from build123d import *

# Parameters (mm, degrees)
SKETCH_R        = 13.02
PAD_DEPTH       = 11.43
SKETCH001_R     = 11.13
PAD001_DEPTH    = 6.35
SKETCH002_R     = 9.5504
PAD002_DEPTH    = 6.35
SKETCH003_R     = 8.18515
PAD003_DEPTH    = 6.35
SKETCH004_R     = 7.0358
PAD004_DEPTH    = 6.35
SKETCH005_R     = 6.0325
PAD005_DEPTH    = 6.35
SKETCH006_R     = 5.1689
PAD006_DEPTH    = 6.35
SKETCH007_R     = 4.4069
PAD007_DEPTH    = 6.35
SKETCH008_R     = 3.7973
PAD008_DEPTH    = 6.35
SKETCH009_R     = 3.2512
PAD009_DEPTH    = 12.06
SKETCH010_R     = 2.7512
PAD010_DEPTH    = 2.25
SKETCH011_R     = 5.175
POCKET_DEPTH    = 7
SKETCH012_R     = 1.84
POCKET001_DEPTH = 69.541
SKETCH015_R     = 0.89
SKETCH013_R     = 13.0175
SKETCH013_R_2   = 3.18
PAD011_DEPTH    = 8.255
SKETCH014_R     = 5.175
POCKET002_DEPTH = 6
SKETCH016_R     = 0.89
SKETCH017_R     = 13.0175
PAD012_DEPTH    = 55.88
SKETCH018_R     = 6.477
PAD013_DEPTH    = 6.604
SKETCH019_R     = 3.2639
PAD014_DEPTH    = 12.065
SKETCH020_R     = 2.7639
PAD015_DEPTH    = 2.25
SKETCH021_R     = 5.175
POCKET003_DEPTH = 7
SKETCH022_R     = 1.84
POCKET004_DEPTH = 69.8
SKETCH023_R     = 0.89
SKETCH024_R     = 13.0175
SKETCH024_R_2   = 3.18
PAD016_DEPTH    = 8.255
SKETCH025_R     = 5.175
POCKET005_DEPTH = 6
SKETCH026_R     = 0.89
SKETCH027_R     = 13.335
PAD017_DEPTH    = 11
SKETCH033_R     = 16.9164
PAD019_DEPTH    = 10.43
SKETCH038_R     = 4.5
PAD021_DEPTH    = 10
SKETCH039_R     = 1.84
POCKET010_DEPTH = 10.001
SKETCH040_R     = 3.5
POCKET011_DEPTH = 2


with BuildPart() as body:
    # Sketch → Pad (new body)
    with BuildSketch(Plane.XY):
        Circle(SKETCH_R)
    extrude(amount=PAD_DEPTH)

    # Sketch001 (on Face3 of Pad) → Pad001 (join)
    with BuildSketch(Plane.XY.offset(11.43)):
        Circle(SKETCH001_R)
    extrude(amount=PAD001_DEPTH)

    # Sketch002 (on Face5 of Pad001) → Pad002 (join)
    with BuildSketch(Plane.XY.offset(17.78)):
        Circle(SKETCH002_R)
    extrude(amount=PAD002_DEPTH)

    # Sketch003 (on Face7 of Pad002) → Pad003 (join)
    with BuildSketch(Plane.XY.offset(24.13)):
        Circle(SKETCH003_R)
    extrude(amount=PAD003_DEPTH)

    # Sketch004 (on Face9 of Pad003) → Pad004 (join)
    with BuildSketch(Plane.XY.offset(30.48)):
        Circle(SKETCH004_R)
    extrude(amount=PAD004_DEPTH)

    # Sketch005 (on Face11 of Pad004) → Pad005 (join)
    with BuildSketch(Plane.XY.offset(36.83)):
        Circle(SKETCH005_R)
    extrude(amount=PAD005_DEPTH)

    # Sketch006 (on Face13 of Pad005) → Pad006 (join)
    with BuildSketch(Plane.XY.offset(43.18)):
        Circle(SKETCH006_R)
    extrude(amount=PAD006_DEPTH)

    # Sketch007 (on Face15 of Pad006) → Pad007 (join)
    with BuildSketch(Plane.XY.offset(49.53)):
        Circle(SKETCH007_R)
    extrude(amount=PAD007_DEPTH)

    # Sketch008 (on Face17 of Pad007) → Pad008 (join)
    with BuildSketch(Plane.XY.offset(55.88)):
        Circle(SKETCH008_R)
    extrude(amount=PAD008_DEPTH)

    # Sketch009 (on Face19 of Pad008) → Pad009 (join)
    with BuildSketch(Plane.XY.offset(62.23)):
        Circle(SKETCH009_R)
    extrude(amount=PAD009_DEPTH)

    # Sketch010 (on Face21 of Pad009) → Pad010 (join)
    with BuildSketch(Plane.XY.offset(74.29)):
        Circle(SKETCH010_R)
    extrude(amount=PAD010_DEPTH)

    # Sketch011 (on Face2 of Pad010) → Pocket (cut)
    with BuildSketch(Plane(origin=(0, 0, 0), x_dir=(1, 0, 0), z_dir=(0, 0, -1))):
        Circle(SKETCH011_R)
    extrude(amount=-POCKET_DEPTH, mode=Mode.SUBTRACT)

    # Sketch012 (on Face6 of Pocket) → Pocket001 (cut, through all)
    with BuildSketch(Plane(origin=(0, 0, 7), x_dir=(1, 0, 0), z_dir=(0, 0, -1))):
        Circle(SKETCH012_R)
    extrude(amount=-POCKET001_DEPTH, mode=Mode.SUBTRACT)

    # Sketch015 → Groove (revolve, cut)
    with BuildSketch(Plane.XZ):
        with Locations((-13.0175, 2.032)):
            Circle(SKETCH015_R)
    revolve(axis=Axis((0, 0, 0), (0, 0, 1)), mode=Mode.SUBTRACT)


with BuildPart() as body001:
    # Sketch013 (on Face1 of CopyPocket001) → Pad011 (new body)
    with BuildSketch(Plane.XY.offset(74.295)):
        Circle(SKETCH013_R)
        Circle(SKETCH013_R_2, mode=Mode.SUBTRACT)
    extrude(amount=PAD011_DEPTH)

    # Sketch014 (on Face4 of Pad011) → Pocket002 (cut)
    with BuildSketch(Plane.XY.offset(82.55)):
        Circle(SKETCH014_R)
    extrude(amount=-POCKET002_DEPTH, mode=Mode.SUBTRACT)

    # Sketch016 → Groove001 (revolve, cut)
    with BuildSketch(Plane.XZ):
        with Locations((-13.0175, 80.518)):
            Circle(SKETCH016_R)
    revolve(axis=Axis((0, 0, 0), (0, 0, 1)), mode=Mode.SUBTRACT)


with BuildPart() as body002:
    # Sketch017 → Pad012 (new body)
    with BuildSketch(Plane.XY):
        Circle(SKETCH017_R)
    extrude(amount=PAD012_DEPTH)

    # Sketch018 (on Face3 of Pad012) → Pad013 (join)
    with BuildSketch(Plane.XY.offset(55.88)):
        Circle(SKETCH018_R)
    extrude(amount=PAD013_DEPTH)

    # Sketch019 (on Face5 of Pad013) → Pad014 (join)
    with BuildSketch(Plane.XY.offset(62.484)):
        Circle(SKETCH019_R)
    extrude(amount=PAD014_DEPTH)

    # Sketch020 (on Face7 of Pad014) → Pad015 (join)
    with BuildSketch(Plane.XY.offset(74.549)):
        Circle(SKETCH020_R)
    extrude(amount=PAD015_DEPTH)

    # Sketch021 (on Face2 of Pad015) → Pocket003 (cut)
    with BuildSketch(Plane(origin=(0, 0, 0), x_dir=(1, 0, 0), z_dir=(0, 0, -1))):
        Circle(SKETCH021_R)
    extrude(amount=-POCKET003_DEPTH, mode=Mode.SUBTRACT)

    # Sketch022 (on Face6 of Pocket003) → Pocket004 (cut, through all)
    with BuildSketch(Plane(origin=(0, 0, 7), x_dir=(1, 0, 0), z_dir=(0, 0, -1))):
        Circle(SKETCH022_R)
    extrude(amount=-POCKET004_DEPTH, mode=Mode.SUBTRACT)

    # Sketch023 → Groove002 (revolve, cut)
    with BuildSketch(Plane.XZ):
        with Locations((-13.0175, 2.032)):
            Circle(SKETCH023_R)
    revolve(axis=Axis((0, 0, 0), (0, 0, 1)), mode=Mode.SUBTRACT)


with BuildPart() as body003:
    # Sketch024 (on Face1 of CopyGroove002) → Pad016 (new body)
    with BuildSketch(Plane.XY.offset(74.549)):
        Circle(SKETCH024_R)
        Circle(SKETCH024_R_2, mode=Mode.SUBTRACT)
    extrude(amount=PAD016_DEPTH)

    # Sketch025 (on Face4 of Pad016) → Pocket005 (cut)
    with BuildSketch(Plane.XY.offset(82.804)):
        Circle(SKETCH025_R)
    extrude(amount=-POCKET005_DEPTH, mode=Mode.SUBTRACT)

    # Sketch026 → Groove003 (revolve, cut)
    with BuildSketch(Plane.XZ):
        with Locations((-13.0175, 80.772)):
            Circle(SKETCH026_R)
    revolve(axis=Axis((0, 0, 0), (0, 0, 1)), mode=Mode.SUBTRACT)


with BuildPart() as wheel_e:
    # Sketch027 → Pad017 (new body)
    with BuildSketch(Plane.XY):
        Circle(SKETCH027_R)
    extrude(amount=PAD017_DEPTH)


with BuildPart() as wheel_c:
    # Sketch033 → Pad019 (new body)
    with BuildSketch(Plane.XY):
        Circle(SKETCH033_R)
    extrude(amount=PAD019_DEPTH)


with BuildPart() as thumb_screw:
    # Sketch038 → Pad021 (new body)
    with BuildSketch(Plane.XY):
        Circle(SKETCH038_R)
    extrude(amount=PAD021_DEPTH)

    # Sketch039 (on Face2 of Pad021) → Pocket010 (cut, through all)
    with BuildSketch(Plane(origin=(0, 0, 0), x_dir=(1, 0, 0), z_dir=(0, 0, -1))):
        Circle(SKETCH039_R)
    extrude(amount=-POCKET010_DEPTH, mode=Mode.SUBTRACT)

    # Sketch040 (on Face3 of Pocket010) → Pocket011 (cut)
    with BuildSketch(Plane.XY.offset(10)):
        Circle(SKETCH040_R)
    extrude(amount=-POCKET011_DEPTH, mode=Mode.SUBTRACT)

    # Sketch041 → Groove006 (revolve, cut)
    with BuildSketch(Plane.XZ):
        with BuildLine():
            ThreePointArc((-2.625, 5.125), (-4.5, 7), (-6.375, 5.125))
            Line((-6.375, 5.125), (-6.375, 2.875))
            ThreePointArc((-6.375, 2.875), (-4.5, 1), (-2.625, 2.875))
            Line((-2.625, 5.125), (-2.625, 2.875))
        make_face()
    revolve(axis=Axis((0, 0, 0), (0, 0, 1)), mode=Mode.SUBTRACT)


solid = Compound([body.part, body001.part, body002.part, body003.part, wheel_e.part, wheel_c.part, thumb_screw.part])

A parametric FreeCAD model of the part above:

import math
import FreeCAD as App
import Part
import Sketcher
from FreeCAD import Vector
Q = App.Units.Quantity

doc = App.newDocument("Part")
body = doc.addObject("PartDesign::Body", "Body")

sketch1 = body.newObject("Sketcher::SketchObject", "Sketch")
sketch1.AttachmentSupport = (doc.getObject("XY_Plane"), [""])
sketch1.MapMode = "FlatFace"
sketch1.addGeometry(Part.Circle(Vector(0, 0, 0), Vector(0, 0, 1), 13), False)
sketch1.addConstraint([
    Sketcher.Constraint("Coincident", 0, 3, -1, 1),
    Sketcher.Constraint("Diameter", 0, 26.04),
])
pad1 = body.newObject("PartDesign::Pad", "Pad")
pad1.Profile = sketch1
pad1.Length = Q("0.45 in")

sketch2 = body.newObject("Sketcher::SketchObject", "Sketch001")
sketch2.AttachmentSupport = (doc.getObject("XY_Plane"), [""])
sketch2.MapMode = "FlatFace"
sketch2.AttachmentOffset = App.Placement(Vector(0, 0, 0.45 * 25.4), App.Rotation())
sketch2.addGeometry(Part.Circle(Vector(0, 0, 0), Vector(0, 0, 1), 11), False)
sketch2.addConstraint([
    Sketcher.Constraint("Coincident", 0, 3, -1, 1),
    Sketcher.Constraint("Diameter", 0, 22.26),
])
pad2 = body.newObject("PartDesign::Pad", "Pad001")
pad2.Profile = sketch2
pad2.Length = Q("0.25 in")

sketch3 = body.newObject("Sketcher::SketchObject", "Sketch002")
sketch3.AttachmentSupport = (doc.getObject("XY_Plane"), [""])
sketch3.MapMode = "FlatFace"
sketch3.AttachmentOffset = App.Placement(Vector(0, 0, 0.7 * 25.4), App.Rotation())
sketch3.addGeometry(Part.Circle(Vector(0, 0, 0), Vector(0, 0, 1), 10), False)
sketch3.addConstraint([
    Sketcher.Constraint("Coincident", 0, 3, -1, 1),
    Sketcher.Constraint("Diameter", 0, Q("0.752 in")),
])
pad3 = body.newObject("PartDesign::Pad", "Pad002")
pad3.Profile = sketch3
pad3.Length = Q("0.25 in")

sketch4 = body.newObject("Sketcher::SketchObject", "Sketch003")
sketch4.AttachmentSupport = (doc.getObject("XY_Plane"), [""])
sketch4.MapMode = "FlatFace"
sketch4.AttachmentOffset = App.Placement(Vector(0, 0, 0.95 * 25.4), App.Rotation())
sketch4.addGeometry(Part.Circle(Vector(0, 0, 0), Vector(0, 0, 1), 8), False)
sketch4.addConstraint([
    Sketcher.Constraint("Coincident", 0, 3, -1, 1),
    Sketcher.Constraint("Diameter", 0, Q("0.6445 in")),
])
pad4 = body.newObject("PartDesign::Pad", "Pad003")
pad4.Profile = sketch4
pad4.Length = Q("0.25 in")

sketch5 = body.newObject("Sketcher::SketchObject", "Sketch004")
sketch5.AttachmentSupport = (doc.getObject("XY_Plane"), [""])
sketch5.MapMode = "FlatFace"
sketch5.AttachmentOffset = App.Placement(Vector(0, 0, 1.2 * 25.4), App.Rotation())
sketch5.addGeometry(Part.Circle(Vector(0, 0, 0), Vector(0, 0, 1), 7), False)
sketch5.addConstraint([
    Sketcher.Constraint("Coincident", 0, 3, -1, 1),
    Sketcher.Constraint("Diameter", 0, Q("0.554 in")),
])
pad5 = body.newObject("PartDesign::Pad", "Pad004")
pad5.Profile = sketch5
pad5.Length = Q("0.25 in")

sketch6 = body.newObject("Sketcher::SketchObject", "Sketch005")
sketch6.AttachmentSupport = (doc.getObject("XY_Plane"), [""])
sketch6.MapMode = "FlatFace"
sketch6.AttachmentOffset = App.Placement(Vector(0, 0, 1.45 * 25.4), App.Rotation())
sketch6.addGeometry(Part.Circle(Vector(0, 0, 0), Vector(0, 0, 1), 6), False)
sketch6.addConstraint([
    Sketcher.Constraint("Coincident", 0, 3, -1, 1),
    Sketcher.Constraint("Diameter", 0, Q("0.475 in")),
])
pad6 = body.newObject("PartDesign::Pad", "Pad005")
pad6.Profile = sketch6
pad6.Length = Q("0.25 in")

sketch7 = body.newObject("Sketcher::SketchObject", "Sketch006")
sketch7.AttachmentSupport = (doc.getObject("XY_Plane"), [""])
sketch7.MapMode = "FlatFace"
sketch7.AttachmentOffset = App.Placement(Vector(0, 0, 1.7 * 25.4), App.Rotation())
sketch7.addGeometry(Part.Circle(Vector(0, 0, 0), Vector(0, 0, 1), 5), False)
sketch7.addConstraint([
    Sketcher.Constraint("Coincident", 0, 3, -1, 1),
    Sketcher.Constraint("Diameter", 0, Q("0.407 in")),
])
pad7 = body.newObject("PartDesign::Pad", "Pad006")
pad7.Profile = sketch7
pad7.Length = Q("0.25 in")

sketch8 = body.newObject("Sketcher::SketchObject", "Sketch007")
sketch8.AttachmentSupport = (doc.getObject("XY_Plane"), [""])
sketch8.MapMode = "FlatFace"
sketch8.AttachmentOffset = App.Placement(Vector(0, 0, 1.95 * 25.4), App.Rotation())
sketch8.addGeometry(Part.Circle(Vector(0, 0, 0), Vector(0, 0, 1), 4.4), False)
sketch8.addConstraint([
    Sketcher.Constraint("Coincident", 0, 3, -1, 1),
    Sketcher.Constraint("Diameter", 0, Q("0.347 in")),
])
pad8 = body.newObject("PartDesign::Pad", "Pad007")
pad8.Profile = sketch8
pad8.Length = Q("0.25 in")

sketch9 = body.newObject("Sketcher::SketchObject", "Sketch008")
sketch9.AttachmentSupport = (doc.getObject("XY_Plane"), [""])
sketch9.MapMode = "FlatFace"
sketch9.AttachmentOffset = App.Placement(Vector(0, 0, 2.2 * 25.4), App.Rotation())
sketch9.addGeometry(Part.Circle(Vector(0, 0, 0), Vector(0, 0, 1), 3.8), False)
sketch9.addConstraint([
    Sketcher.Constraint("Coincident", 0, 3, -1, 1),
    Sketcher.Constraint("Diameter", 0, Q("0.299 in")),
])
pad9 = body.newObject("PartDesign::Pad", "Pad008")
pad9.Profile = sketch9
pad9.Length = Q("0.25 in")

sketch10 = body.newObject("Sketcher::SketchObject", "Sketch009")
sketch10.AttachmentSupport = (doc.getObject("XY_Plane"), [""])
sketch10.MapMode = "FlatFace"
sketch10.AttachmentOffset = App.Placement(Vector(0, 0, 2.45 * 25.4), App.Rotation())
sketch10.addGeometry(Part.Circle(Vector(0, 0, 0), Vector(0, 0, 1), 3.3), False)
sketch10.addConstraint([
    Sketcher.Constraint("Coincident", 0, 3, -1, 1),
    Sketcher.Constraint("Diameter", 0, Q("0.256 in")),
])
pad10 = body.newObject("PartDesign::Pad", "Pad009")
pad10.Profile = sketch10
pad10.Length = 12.06

sketch11 = body.newObject("Sketcher::SketchObject", "Sketch010")
sketch11.AttachmentSupport = (doc.getObject("XY_Plane"), [""])
sketch11.MapMode = "FlatFace"
sketch11.AttachmentOffset = App.Placement(Vector(0, 0, 74.29), App.Rotation())
sketch11.addGeometry(Part.Circle(Vector(0, 0, 0), Vector(0, 0, 1), 2.8), False)
sketch11.addConstraint([
    Sketcher.Constraint("Coincident", 0, 3, -1, 1),
    Sketcher.Constraint("Diameter", 0, 5.5024),
])
pad11 = body.newObject("PartDesign::Pad", "Pad010")
pad11.Profile = sketch11
pad11.Length = 2.25

sketch12 = body.newObject("Sketcher::SketchObject", "Sketch011")
sketch12.AttachmentSupport = (doc.getObject("XY_Plane"), [""])
sketch12.MapMode = "FlatFace"
sketch12.addGeometry(Part.Circle(Vector(0, 0, 0), Vector(0, 0, 1), 5), False)
sketch12.addConstraint([
    Sketcher.Constraint("Coincident", 0, 3, -1, 1),
    Sketcher.Constraint("Diameter", 0, 10.35),
])
pocket1 = body.newObject("PartDesign::Pocket", "Pocket")
pocket1.Profile = sketch12
pocket1.Length = 7
pocket1.Reversed = True

sketch13 = body.newObject("Sketcher::SketchObject", "Sketch012")
sketch13.AttachmentSupport = (doc.getObject("XY_Plane"), [""])
sketch13.MapMode = "FlatFace"
sketch13.AttachmentOffset = App.Placement(Vector(0, 0, 7), App.Rotation())
sketch13.addGeometry(Part.Circle(Vector(0, 0, 0), Vector(0, 0, 1), 1.8), False)
sketch13.addConstraint([
    Sketcher.Constraint("Coincident", 0, 3, -1, 1),
    Sketcher.Constraint("Diameter", 0, 3.68),
])
pocket2 = body.newObject("PartDesign::Pocket", "Pocket001")
pocket2.Profile = sketch13
pocket2.Type = "ThroughAll"
pocket2.Reversed = True

sketch14 = body.newObject("Sketcher::SketchObject", "Sketch013")
sketch14.AttachmentSupport = (doc.getObject("XZ_Plane"), [""])
sketch14.MapMode = "FlatFace"
sketch14.addGeometry(Part.Circle(Vector(-13, 2, 0), Vector(0, 0, 1), 0.9), False)
sketch14.addConstraint([
    Sketcher.Constraint("Diameter", 0, 1.78),
    Sketcher.Constraint("DistanceY", -1, 1, 0, 3, Q("0.08 in")),
    Sketcher.Constraint("DistanceX", 0, 3, -1, 1, Q("0.5125 in")),
])
groove = body.newObject("PartDesign::Groove", "Groove")
groove.Profile = sketch14
groove.ReferenceAxis = (sketch14, ["V_Axis"])
groove.Angle = 360
body2 = doc.addObject("PartDesign::Body", "Body001")

sketch15 = body2.newObject("Sketcher::SketchObject", "Sketch014")
sketch15.AttachmentSupport = (doc.getObject("XY_Plane001"), [""])
sketch15.MapMode = "FlatFace"
sketch15.AttachmentOffset = App.Placement(Vector(0, 0, 2.925 * 25.4), App.Rotation())
sketch15.addGeometry([
    Part.Circle(Vector(0, 0, 0), Vector(0, 0, 1), 13),
    Part.Circle(Vector(0, 0, 0), Vector(0, 0, 1), 3.2),
], False)
sketch15.addConstraint([
    Sketcher.Constraint("Coincident", 0, 3, -1, 1),
    Sketcher.Constraint("Coincident", 1, 3, -1, 1),
    Sketcher.Constraint("Diameter", 0, Q("1.025 in")),
    Sketcher.Constraint("Diameter", 1, 6.36),
])
pad12 = body2.newObject("PartDesign::Pad", "Pad011")
pad12.Profile = sketch15
pad12.Length = Q("0.325 in")

sketch16 = body2.newObject("Sketcher::SketchObject", "Sketch015")
sketch16.AttachmentSupport = (doc.getObject("XY_Plane001"), [""])
sketch16.MapMode = "FlatFace"
sketch16.AttachmentOffset = App.Placement(Vector(0, 0, 3.25 * 25.4), App.Rotation())
sketch16.addGeometry(Part.Circle(Vector(0, 0, 0), Vector(0, 0, 1), 5), False)
sketch16.addConstraint([
    Sketcher.Constraint("Coincident", 0, 3, -1, 1),
    Sketcher.Constraint("Diameter", 0, 10.35),
])
pocket3 = body2.newObject("PartDesign::Pocket", "Pocket002")
pocket3.Profile = sketch16
pocket3.Length = 6

sketch17 = body2.newObject("Sketcher::SketchObject", "Sketch016")
sketch17.AttachmentSupport = (doc.getObject("XZ_Plane001"), [""])
sketch17.MapMode = "FlatFace"
sketch17.addGeometry(Part.Circle(Vector(-13, 80.5, 0), Vector(0, 0, 1), 0.9), False)
sketch17.addConstraint([
    Sketcher.Constraint("Diameter", 0, 1.78),
    Sketcher.Constraint("DistanceY", -1, 1, 0, 3, Q("3.17 in")),
    Sketcher.Constraint("DistanceX", 0, 3, -1, 1, Q("0.5125 in")),
])
groove2 = body2.newObject("PartDesign::Groove", "Groove001")
groove2.Profile = sketch17
groove2.ReferenceAxis = (sketch17, ["V_Axis"])
groove2.Angle = 360
body3 = doc.addObject("PartDesign::Body", "Body002")

sketch18 = body3.newObject("Sketcher::SketchObject", "Sketch017")
sketch18.AttachmentSupport = (doc.getObject("XY_Plane002"), [""])
sketch18.MapMode = "FlatFace"
sketch18.addGeometry(Part.Circle(Vector(0, 0, 0), Vector(0, 0, 1), 13), False)
sketch18.addConstraint([
    Sketcher.Constraint("Coincident", 0, 3, -1, 1),
    Sketcher.Constraint("Diameter", 0, Q("1.025 in")),
])
pad13 = body3.newObject("PartDesign::Pad", "Pad012")
pad13.Profile = sketch18
pad13.Length = Q("2.2 in")

sketch19 = body3.newObject("Sketcher::SketchObject", "Sketch018")
sketch19.AttachmentSupport = (doc.getObject("XY_Plane002"), [""])
sketch19.MapMode = "FlatFace"
sketch19.AttachmentOffset = App.Placement(Vector(0, 0, 2.2 * 25.4), App.Rotation())
sketch19.addGeometry(Part.Circle(Vector(0, 0, 0), Vector(0, 0, 1), 6), False)
sketch19.addConstraint([
    Sketcher.Constraint("Coincident", 0, 3, -1, 1),
    Sketcher.Constraint("Diameter", 0, Q("0.51 in")),
])
pad14 = body3.newObject("PartDesign::Pad", "Pad013")
pad14.Profile = sketch19
pad14.Length = Q("0.26 in")

sketch20 = body3.newObject("Sketcher::SketchObject", "Sketch019")
sketch20.AttachmentSupport = (doc.getObject("XY_Plane002"), [""])
sketch20.MapMode = "FlatFace"
sketch20.AttachmentOffset = App.Placement(Vector(0, 0, 2.46 * 25.4), App.Rotation())
sketch20.addGeometry(Part.Circle(Vector(0, 0, 0), Vector(0, 0, 1), 3.3), False)
sketch20.addConstraint([
    Sketcher.Constraint("Coincident", 0, 3, -1, 1),
    Sketcher.Constraint("Diameter", 0, Q("0.257 in")),
])
pad15 = body3.newObject("PartDesign::Pad", "Pad014")
pad15.Profile = sketch20
pad15.Length = Q("0.475 in")

sketch21 = body3.newObject("Sketcher::SketchObject", "Sketch020")
sketch21.AttachmentSupport = (doc.getObject("XY_Plane002"), [""])
sketch21.MapMode = "FlatFace"
sketch21.AttachmentOffset = App.Placement(Vector(0, 0, 2.935 * 25.4), App.Rotation())
sketch21.addGeometry(Part.Circle(Vector(0, 0, 0), Vector(0, 0, 1), 2.8), False)
sketch21.addConstraint([
    Sketcher.Constraint("Coincident", 0, 3, -1, 1),
    Sketcher.Constraint("Diameter", 0, 5.5278),
])
pad16 = body3.newObject("PartDesign::Pad", "Pad015")
pad16.Profile = sketch21
pad16.Length = 2.25

sketch22 = body3.newObject("Sketcher::SketchObject", "Sketch021")
sketch22.AttachmentSupport = (doc.getObject("XY_Plane002"), [""])
sketch22.MapMode = "FlatFace"
sketch22.addGeometry(Part.Circle(Vector(0, 0, 0), Vector(0, 0, 1), 5), False)
sketch22.addConstraint([
    Sketcher.Constraint("Coincident", 0, 3, -1, 1),
    Sketcher.Constraint("Diameter", 0, 10.35),
])
pocket4 = body3.newObject("PartDesign::Pocket", "Pocket003")
pocket4.Profile = sketch22
pocket4.Length = 7
pocket4.Reversed = True

sketch23 = body3.newObject("Sketcher::SketchObject", "Sketch022")
sketch23.AttachmentSupport = (doc.getObject("XY_Plane002"), [""])
sketch23.MapMode = "FlatFace"
sketch23.AttachmentOffset = App.Placement(Vector(0, 0, 7), App.Rotation())
sketch23.addGeometry(Part.Circle(Vector(0, 0, 0), Vector(0, 0, 1), 1.8), False)
sketch23.addConstraint([
    Sketcher.Constraint("Coincident", 0, 3, -1, 1),
    Sketcher.Constraint("Diameter", 0, 3.68),
])
pocket5 = body3.newObject("PartDesign::Pocket", "Pocket004")
pocket5.Profile = sketch23
pocket5.Type = "ThroughAll"
pocket5.Reversed = True

sketch24 = body3.newObject("Sketcher::SketchObject", "Sketch023")
sketch24.AttachmentSupport = (doc.getObject("XZ_Plane002"), [""])
sketch24.MapMode = "FlatFace"
sketch24.addGeometry(Part.Circle(Vector(-13, 2, 0), Vector(0, 0, 1), 0.9), False)
sketch24.addConstraint([
    Sketcher.Constraint("Diameter", 0, 1.78),
    Sketcher.Constraint("DistanceY", -1, 1, 0, 3, Q("0.08 in")),
    Sketcher.Constraint("DistanceX", 0, 3, -1, 1, Q("0.5125 in")),
])
groove3 = body3.newObject("PartDesign::Groove", "Groove002")
groove3.Profile = sketch24
groove3.ReferenceAxis = (sketch24, ["V_Axis"])
groove3.Angle = 360
body4 = doc.addObject("PartDesign::Body", "Body003")

sketch25 = body4.newObject("Sketcher::SketchObject", "Sketch024")
sketch25.AttachmentSupport = (doc.getObject("XY_Plane003"), [""])
sketch25.MapMode = "FlatFace"
sketch25.AttachmentOffset = App.Placement(Vector(0, 0, 2.935 * 25.4), App.Rotation())
sketch25.addGeometry([
    Part.Circle(Vector(0, 0, 0), Vector(0, 0, 1), 13),
    Part.Circle(Vector(0, 0, 0), Vector(0, 0, 1), 3.2),
], False)
sketch25.addConstraint([
    Sketcher.Constraint("Coincident", 0, 3, -1, 1),
    Sketcher.Constraint("Coincident", 1, 3, -1, 1),
    Sketcher.Constraint("Diameter", 0, Q("1.025 in")),
    Sketcher.Constraint("Diameter", 1, 6.36),
])
pad17 = body4.newObject("PartDesign::Pad", "Pad016")
pad17.Profile = sketch25
pad17.Length = Q("0.325 in")

sketch26 = body4.newObject("Sketcher::SketchObject", "Sketch025")
sketch26.AttachmentSupport = (doc.getObject("XY_Plane003"), [""])
sketch26.MapMode = "FlatFace"
sketch26.AttachmentOffset = App.Placement(Vector(0, 0, 3.26 * 25.4), App.Rotation())
sketch26.addGeometry(Part.Circle(Vector(0, 0, 0), Vector(0, 0, 1), 5), False)
sketch26.addConstraint([
    Sketcher.Constraint("Coincident", 0, 3, -1, 1),
    Sketcher.Constraint("Diameter", 0, 10.35),
])
pocket6 = body4.newObject("PartDesign::Pocket", "Pocket005")
pocket6.Profile = sketch26
pocket6.Length = 6

sketch27 = body4.newObject("Sketcher::SketchObject", "Sketch026")
sketch27.AttachmentSupport = (doc.getObject("XZ_Plane003"), [""])
sketch27.MapMode = "FlatFace"
sketch27.addGeometry(Part.Circle(Vector(-13, 80.8, 0), Vector(0, 0, 1), 0.9), False)
sketch27.addConstraint([
    Sketcher.Constraint("Diameter", 0, 1.78),
    Sketcher.Constraint("DistanceY", -1, 1, 0, 3, Q("3.18 in")),
    Sketcher.Constraint("DistanceX", 0, 3, -1, 1, Q("0.5125 in")),
])
groove4 = body4.newObject("PartDesign::Groove", "Groove003")
groove4.Profile = sketch27
groove4.ReferenceAxis = (sketch27, ["V_Axis"])
groove4.Angle = 360
body5 = doc.addObject("PartDesign::Body", "Body004")

sketch28 = body5.newObject("Sketcher::SketchObject", "Sketch027")
sketch28.AttachmentSupport = (doc.getObject("XY_Plane004"), [""])
sketch28.MapMode = "FlatFace"
sketch28.addGeometry(Part.Circle(Vector(0, 0, 0), Vector(0, 0, 1), 13), False)
sketch28.addConstraint([
    Sketcher.Constraint("Coincident", 0, 3, -1, 1),
    Sketcher.Constraint("Diameter", 0, Q("1.05 in")),
])
pad18 = body5.newObject("PartDesign::Pad", "Pad017")
pad18.Profile = sketch28
pad18.Length = 11
body6 = doc.addObject("PartDesign::Body", "Body005")

sketch29 = body6.newObject("Sketcher::SketchObject", "Sketch028")
sketch29.AttachmentSupport = (doc.getObject("XY_Plane005"), [""])
sketch29.MapMode = "FlatFace"
sketch29.addGeometry(Part.Circle(Vector(0, 0, 0), Vector(0, 0, 1), 17), False)
sketch29.addConstraint([
    Sketcher.Constraint("Coincident", 0, 3, -1, 1),
    Sketcher.Constraint("Diameter", 0, Q("1.332 in")),
])
pad19 = body6.newObject("PartDesign::Pad", "Pad018")
pad19.Profile = sketch29
pad19.Length = 10.43
body7 = doc.addObject("PartDesign::Body", "Body006")

sketch30 = body7.newObject("Sketcher::SketchObject", "Sketch029")
sketch30.AttachmentSupport = (doc.getObject("XY_Plane006"), [""])
sketch30.MapMode = "FlatFace"
sketch30.addGeometry(Part.Circle(Vector(0, 0, 0), Vector(0, 0, 1), 4.5), False)
sketch30.addConstraint([
    Sketcher.Constraint("Coincident", 0, 3, -1, 1),
    Sketcher.Constraint("Diameter", 0, 9.0),
])
pad20 = body7.newObject("PartDesign::Pad", "Pad019")
pad20.Profile = sketch30
pad20.Length = 10

sketch31 = body7.newObject("Sketcher::SketchObject", "Sketch030")
sketch31.AttachmentSupport = (doc.getObject("XY_Plane006"), [""])
sketch31.MapMode = "FlatFace"
sketch31.addGeometry(Part.Circle(Vector(0, 0, 0), Vector(0, 0, 1), 1.8), False)
sketch31.addConstraint([
    Sketcher.Constraint("Coincident", 0, 3, -1, 1),
    Sketcher.Constraint("Diameter", 0, 3.68),
])
pocket7 = body7.newObject("PartDesign::Pocket", "Pocket006")
pocket7.Profile = sketch31
pocket7.Type = "ThroughAll"
pocket7.Reversed = True

sketch32 = body7.newObject("Sketcher::SketchObject", "Sketch031")
sketch32.AttachmentSupport = (doc.getObject("XY_Plane006"), [""])
sketch32.MapMode = "FlatFace"
sketch32.AttachmentOffset = App.Placement(Vector(0, 0, 10), App.Rotation())
sketch32.addGeometry(Part.Circle(Vector(0, 0, 0), Vector(0, 0, 1), 3.5), False)
sketch32.addConstraint([
    Sketcher.Constraint("Coincident", 0, 3, -1, 1),
    Sketcher.Constraint("Diameter", 0, 7.0),
])
pocket8 = body7.newObject("PartDesign::Pocket", "Pocket007")
pocket8.Profile = sketch32
pocket8.Length = 2

sketch33 = body7.newObject("Sketcher::SketchObject", "Sketch032")
sketch33.AttachmentSupport = (doc.getObject("XZ_Plane006"), [""])
sketch33.MapMode = "FlatFace"
sketch33.addGeometry([
    Part.ArcOfCircle(Part.Circle(Vector(-4.5, 5.1, 0), Vector(0, 0, 1), 1.9), math.radians(0), math.radians(180)),
    Part.LineSegment(Vector(-6.4, 5.1, 0), Vector(-6.4, 2.9, 0)),
    Part.ArcOfCircle(Part.Circle(Vector(-4.5, 2.9, 0), Vector(0, 0, 1), 1.9), math.radians(180), math.radians(360)),
    Part.LineSegment(Vector(-2.6, 2.9, 0), Vector(-2.6, 5.1, 0)),
], False)
sketch33.addConstraint([
    Sketcher.Constraint("Tangent", 0, 2, 1, 1),
    Sketcher.Constraint("Tangent", 1, 2, 2, 1),
    Sketcher.Constraint("Tangent", 2, 2, 3, 1),
    Sketcher.Constraint("Tangent", 3, 2, 0, 1),
    Sketcher.Constraint("Vertical", 1),
    Sketcher.Constraint("Vertical", 3),
    Sketcher.Constraint("Radius", 0, 1.875),
    Sketcher.Constraint("DistanceY", 1, 2, 1, 1, 2.25),
    Sketcher.Constraint("DistanceX", 0, 3, -1, 1, 4.5),
    Sketcher.Constraint("DistanceY", -1, 1, 0, 3, 5.125),
])
groove5 = body7.newObject("PartDesign::Groove", "Groove004")
groove5.Profile = sketch33
groove5.ReferenceAxis = (sketch33, ["V_Axis"])
groove5.Angle = 360

doc.recompute()
